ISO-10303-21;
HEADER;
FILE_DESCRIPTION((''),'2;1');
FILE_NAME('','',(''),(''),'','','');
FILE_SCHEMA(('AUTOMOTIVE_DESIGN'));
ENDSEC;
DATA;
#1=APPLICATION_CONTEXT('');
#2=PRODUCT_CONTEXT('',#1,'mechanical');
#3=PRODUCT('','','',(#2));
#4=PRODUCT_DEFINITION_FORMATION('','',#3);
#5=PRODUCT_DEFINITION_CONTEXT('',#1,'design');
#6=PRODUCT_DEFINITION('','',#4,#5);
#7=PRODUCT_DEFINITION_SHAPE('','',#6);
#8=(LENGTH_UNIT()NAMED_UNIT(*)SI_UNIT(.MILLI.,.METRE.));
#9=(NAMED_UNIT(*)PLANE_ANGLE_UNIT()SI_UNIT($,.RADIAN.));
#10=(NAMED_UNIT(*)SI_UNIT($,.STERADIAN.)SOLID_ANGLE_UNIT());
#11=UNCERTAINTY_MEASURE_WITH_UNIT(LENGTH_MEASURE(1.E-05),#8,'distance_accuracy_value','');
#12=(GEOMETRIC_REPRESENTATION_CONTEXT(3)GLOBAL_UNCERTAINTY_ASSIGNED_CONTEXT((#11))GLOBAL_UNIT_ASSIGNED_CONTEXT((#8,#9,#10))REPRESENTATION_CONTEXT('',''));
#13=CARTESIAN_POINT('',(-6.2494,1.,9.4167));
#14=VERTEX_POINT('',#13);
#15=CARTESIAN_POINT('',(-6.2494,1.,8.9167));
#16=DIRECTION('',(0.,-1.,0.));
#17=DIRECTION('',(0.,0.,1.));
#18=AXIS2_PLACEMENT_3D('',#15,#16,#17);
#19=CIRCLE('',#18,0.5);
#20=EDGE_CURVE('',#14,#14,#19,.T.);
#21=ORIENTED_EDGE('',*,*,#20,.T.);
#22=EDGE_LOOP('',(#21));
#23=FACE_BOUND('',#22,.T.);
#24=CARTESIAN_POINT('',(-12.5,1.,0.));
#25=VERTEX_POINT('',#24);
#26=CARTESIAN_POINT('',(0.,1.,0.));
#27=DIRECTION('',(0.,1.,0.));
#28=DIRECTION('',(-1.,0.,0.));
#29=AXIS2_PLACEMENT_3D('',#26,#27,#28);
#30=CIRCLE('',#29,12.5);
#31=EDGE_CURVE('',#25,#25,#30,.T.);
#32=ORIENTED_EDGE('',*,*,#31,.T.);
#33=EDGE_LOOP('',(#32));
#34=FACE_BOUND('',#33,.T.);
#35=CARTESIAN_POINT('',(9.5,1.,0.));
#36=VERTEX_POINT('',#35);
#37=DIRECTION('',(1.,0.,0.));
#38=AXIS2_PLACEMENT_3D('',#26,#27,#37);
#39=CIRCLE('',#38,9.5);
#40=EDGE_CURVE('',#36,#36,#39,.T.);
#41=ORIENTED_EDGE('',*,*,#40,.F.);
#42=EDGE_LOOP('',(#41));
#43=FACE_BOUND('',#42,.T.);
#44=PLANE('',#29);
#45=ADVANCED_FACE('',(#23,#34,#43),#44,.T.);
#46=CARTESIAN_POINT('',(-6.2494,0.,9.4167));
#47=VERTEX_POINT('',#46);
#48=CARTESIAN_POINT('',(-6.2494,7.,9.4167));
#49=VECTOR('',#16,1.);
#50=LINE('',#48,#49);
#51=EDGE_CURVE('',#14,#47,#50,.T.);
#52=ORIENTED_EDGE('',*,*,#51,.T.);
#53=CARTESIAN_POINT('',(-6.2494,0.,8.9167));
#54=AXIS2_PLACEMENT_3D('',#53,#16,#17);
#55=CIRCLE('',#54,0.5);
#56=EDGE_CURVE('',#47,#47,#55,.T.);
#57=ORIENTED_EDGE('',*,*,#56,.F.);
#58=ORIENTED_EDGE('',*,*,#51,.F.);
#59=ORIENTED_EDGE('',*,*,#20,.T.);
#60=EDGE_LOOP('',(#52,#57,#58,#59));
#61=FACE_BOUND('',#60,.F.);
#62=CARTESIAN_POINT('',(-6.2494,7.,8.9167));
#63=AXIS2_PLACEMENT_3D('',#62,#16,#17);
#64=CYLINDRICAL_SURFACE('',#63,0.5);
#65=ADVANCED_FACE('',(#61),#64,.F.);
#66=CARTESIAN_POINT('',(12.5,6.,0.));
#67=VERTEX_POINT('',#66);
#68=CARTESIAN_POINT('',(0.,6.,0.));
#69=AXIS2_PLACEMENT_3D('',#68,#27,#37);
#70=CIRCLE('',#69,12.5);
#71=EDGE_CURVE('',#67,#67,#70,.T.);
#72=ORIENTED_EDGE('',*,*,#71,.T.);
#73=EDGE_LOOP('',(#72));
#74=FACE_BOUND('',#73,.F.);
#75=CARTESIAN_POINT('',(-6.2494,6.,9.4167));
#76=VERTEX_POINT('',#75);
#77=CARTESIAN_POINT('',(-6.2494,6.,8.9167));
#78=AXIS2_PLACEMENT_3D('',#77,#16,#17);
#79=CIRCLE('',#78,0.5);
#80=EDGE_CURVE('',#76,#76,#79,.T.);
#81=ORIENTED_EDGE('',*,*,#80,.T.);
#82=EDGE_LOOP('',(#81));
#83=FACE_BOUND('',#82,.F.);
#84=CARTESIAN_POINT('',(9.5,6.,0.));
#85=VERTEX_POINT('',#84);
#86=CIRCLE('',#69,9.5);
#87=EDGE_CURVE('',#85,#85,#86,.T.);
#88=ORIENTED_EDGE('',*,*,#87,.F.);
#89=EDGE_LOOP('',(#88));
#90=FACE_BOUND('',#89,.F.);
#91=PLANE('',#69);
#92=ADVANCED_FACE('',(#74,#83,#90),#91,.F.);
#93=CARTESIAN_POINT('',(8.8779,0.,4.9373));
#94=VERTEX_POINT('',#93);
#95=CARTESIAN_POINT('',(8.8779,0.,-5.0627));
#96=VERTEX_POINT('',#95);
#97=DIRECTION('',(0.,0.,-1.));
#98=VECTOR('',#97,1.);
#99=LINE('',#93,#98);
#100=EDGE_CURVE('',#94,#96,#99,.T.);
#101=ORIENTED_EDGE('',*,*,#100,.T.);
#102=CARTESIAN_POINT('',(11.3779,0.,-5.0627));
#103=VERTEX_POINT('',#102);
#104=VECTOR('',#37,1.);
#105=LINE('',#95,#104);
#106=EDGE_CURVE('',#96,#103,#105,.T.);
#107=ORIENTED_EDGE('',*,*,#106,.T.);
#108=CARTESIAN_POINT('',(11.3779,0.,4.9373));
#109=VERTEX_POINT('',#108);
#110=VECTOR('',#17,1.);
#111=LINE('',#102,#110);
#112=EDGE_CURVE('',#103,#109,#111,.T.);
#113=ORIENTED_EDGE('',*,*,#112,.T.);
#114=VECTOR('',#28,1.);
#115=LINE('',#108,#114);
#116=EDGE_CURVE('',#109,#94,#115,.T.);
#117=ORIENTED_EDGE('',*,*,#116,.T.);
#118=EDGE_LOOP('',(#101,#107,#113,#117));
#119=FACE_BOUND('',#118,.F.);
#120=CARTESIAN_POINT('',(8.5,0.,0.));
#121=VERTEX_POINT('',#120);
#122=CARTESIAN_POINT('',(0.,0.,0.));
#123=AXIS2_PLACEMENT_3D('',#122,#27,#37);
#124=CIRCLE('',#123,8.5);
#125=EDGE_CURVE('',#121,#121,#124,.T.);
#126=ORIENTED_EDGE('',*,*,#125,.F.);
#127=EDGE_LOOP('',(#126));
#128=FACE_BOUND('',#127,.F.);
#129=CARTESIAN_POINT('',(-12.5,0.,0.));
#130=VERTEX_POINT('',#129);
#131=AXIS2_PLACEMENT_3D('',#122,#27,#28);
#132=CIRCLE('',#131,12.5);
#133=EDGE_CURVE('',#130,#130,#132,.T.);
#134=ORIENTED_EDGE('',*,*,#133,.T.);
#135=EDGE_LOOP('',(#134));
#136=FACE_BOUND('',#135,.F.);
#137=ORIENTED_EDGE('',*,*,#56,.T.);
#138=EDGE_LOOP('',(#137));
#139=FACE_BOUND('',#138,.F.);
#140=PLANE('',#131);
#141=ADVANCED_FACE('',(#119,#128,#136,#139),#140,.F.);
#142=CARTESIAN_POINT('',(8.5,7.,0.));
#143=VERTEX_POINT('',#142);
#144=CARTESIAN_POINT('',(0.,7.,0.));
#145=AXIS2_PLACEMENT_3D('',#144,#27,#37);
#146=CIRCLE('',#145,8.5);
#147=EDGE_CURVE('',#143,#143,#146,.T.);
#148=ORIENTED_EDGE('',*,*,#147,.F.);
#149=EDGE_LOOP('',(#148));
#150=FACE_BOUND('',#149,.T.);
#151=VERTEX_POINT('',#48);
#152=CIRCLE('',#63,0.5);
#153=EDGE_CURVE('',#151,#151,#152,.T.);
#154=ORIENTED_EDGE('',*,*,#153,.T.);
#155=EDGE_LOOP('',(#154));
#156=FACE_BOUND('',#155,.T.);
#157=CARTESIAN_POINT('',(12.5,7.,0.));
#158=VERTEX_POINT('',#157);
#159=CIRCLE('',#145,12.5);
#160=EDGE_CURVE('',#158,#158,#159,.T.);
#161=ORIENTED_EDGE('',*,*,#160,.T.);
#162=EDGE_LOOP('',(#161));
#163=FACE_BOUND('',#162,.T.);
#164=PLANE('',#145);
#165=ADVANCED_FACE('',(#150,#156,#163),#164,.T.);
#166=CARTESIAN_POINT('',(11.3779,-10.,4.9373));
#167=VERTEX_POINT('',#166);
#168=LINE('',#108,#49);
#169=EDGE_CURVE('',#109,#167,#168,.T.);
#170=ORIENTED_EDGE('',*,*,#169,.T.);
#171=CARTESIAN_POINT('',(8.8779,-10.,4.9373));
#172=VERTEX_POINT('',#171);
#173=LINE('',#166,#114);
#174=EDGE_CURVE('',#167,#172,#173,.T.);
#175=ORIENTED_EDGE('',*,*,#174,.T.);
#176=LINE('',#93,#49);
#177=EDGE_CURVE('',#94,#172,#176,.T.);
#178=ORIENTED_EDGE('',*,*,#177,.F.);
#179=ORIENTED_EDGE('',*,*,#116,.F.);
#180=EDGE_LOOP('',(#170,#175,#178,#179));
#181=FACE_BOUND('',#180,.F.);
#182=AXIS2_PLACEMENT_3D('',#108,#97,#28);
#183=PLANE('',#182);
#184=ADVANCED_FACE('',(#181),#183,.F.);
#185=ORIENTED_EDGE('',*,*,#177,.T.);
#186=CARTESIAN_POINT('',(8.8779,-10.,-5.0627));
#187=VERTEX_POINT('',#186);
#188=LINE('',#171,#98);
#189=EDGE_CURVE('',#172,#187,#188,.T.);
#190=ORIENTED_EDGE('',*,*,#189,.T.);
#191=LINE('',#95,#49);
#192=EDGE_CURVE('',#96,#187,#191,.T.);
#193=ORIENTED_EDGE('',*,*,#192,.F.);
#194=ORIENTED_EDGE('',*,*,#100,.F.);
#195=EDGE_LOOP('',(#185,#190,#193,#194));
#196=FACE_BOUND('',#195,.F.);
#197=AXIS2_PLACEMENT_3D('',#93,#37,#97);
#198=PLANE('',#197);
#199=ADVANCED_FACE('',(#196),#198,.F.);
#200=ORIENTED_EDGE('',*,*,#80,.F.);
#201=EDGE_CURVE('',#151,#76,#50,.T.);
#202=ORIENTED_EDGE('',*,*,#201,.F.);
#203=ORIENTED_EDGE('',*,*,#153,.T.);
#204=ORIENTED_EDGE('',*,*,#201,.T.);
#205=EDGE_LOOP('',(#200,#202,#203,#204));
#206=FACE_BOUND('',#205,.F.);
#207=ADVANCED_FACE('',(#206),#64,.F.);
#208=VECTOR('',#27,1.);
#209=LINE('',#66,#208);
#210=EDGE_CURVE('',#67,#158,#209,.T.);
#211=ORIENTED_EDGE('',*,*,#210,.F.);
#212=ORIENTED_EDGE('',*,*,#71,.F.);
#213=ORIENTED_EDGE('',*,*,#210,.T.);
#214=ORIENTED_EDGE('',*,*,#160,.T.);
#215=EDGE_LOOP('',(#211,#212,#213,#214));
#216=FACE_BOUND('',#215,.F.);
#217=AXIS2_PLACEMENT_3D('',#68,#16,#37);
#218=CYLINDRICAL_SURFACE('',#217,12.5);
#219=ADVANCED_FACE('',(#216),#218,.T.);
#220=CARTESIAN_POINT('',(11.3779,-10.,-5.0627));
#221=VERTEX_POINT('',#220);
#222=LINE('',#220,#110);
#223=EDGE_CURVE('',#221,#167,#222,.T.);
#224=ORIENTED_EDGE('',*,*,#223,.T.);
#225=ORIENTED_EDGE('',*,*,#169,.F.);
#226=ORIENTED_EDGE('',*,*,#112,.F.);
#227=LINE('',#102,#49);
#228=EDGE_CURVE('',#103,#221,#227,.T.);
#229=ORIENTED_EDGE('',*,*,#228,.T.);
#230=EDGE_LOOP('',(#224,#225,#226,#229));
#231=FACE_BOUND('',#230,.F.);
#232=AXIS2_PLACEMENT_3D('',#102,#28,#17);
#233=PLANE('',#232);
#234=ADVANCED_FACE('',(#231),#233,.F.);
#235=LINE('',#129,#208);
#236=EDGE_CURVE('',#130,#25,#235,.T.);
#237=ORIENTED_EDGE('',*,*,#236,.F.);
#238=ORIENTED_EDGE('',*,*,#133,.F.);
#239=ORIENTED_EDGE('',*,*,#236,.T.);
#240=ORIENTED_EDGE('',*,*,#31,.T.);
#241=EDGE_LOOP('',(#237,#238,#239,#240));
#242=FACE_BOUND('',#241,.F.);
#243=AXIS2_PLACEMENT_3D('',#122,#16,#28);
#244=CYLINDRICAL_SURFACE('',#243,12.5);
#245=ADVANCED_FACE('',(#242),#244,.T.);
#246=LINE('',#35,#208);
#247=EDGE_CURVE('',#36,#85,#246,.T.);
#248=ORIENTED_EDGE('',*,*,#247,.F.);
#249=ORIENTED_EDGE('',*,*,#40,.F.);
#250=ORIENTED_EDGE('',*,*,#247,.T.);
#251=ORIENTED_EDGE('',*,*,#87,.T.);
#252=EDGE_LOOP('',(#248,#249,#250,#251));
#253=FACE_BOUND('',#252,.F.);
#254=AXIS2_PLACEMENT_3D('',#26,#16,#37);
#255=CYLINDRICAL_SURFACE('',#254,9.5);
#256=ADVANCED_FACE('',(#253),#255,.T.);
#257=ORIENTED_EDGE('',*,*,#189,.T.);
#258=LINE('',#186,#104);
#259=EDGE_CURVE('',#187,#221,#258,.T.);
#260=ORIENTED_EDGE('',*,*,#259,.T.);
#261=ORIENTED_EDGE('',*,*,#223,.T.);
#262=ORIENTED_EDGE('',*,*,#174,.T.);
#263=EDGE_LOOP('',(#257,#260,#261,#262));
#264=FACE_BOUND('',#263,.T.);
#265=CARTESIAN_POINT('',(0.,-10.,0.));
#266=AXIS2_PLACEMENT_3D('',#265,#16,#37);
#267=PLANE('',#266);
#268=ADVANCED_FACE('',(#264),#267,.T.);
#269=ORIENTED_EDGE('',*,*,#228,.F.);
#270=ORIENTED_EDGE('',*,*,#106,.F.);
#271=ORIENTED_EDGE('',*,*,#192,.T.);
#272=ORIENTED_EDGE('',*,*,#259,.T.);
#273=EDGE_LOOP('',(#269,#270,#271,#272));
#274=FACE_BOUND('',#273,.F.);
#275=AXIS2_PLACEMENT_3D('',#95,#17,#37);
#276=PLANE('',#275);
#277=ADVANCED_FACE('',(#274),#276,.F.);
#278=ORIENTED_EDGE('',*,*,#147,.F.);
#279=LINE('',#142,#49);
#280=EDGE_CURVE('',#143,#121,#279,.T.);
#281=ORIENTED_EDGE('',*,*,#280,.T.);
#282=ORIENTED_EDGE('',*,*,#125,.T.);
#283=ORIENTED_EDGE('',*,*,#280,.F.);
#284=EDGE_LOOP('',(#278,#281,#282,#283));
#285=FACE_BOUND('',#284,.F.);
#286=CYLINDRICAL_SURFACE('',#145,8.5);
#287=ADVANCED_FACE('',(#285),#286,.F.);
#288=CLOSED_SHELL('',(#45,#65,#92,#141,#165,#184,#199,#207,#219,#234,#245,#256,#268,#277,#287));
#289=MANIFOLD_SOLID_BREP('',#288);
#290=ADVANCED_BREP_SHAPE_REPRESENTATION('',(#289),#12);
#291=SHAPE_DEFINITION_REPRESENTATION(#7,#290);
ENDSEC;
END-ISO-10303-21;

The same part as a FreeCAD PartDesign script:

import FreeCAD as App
import Part
import Sketcher
from FreeCAD import Vector
Q = App.Units.Quantity

doc = App.newDocument("Part")
body = doc.addObject("PartDesign::Body", "Body")

sketch1 = body.newObject("Sketcher::SketchObject", "Sketch")
sketch1.AttachmentSupport = (doc.getObject("XZ_Plane"), [""])
sketch1.MapMode = "FlatFace"
sketch1.addGeometry(Part.Circle(Vector(0, 0, 0), Vector(0, 0, 1), 12), False)
sketch1.addConstraint([
    Sketcher.Constraint("Coincident", 0, 3, -1, 1),
    Sketcher.Constraint("Diameter", 0, Q("25 mm")),
])
pad1 = body.newObject("PartDesign::Pad", "Pad")
pad1.Profile = sketch1
pad1.Length = 1
pad1.Reversed = True

sketch2 = body.newObject("Sketcher::SketchObject", "Sketch001")
sketch2.AttachmentSupport = (doc.getObject("XZ_Plane"), [""])
sketch2.MapMode = "FlatFace"
sketch2.AttachmentOffset = App.Placement(Vector(0, 0, -1), App.Rotation())
sketch2.addGeometry(Part.Circle(Vector(0, 0, 0), Vector(0, 0, 1), 10), False)
sketch2.addConstraint([
    Sketcher.Constraint("Coincident", 0, 3, -1, 1),
    Sketcher.Constraint("Diameter", 0, Q("19 mm")),
])
pad2 = body.newObject("PartDesign::Pad", "Pad001")
pad2.Profile = sketch2
pad2.Length = 5
pad2.Reversed = True

sketch3 = body.newObject("Sketcher::SketchObject", "Sketch002")
sketch3.AttachmentSupport = (doc.getObject("XZ_Plane"), [""])
sketch3.MapMode = "FlatFace"
sketch3.AttachmentOffset = App.Placement(Vector(0, 0, -6), App.Rotation())
sketch3.addGeometry(Part.Circle(Vector(0, 0, 0), Vector(0, 0, 1), 12), False)
sketch3.addConstraint([
    Sketcher.Constraint("Coincident", 0, 3, -1, 1),
    Sketcher.Constraint("Diameter", 0, Q("25 mm")),
])
pad3 = body.newObject("PartDesign::Pad", "Pad002")
pad3.Profile = sketch3
pad3.Length = 1
pad3.Reversed = True

sketch4 = body.newObject("Sketcher::SketchObject", "Sketch003")
sketch4.AttachmentSupport = (doc.getObject("XZ_Plane"), [""])
sketch4.MapMode = "FlatFace"
sketch4.AttachmentOffset = App.Placement(Vector(0, 0, -7), App.Rotation())
sketch4.addGeometry(Part.Circle(Vector(-6.2, 8.9, 0), Vector(0, 0, 1), 0.5), False)
sketch4.addConstraint([
    Sketcher.Constraint("Diameter", 0, Q("1 mm")),
    Sketcher.Constraint("DistanceX", 0, 3, -1, 1, Q("6.2494 mm")),
    Sketcher.Constraint("DistanceY", -1, 1, 0, 3, Q("8.9167 mm")),
])
doc.recompute()
hole = body.newObject("PartDesign::Hole", "Hole")
hole.Profile = sketch4
hole.ThreadType = "None"
hole.Diameter = 1
hole.DepthType = "Dimension"
hole.Depth = 7
hole.DrillPoint = "Flat"
hole.Reversed = True

sketch5 = body.newObject("Sketcher::SketchObject", "Sketch004")
sketch5.AttachmentSupport = (doc.getObject("XZ_Plane"), [""])
sketch5.MapMode = "FlatFace"
sketch5.AttachmentOffset = App.Placement(Vector(0, 0, -7), App.Rotation())
sketch5.addGeometry(Part.Circle(Vector(0, 0, 0), Vector(0, 0, 1), 8), False)
sketch5.addConstraint([
    Sketcher.Constraint("Coincident", 0, 3, -1, 1),
    Sketcher.Constraint("Diameter", 0, Q("17 mm")),
])
pocket1 = body.newObject("PartDesign::Pocket", "Pocket")
pocket1.Profile = sketch5
pocket1.Length = 7
pocket1.Reversed = True

sketch6 = body.newObject("Sketcher::SketchObject", "Sketch005")
sketch6.AttachmentSupport = (doc.getObject("XZ_Plane"), [""])
sketch6.MapMode = "FlatFace"
sketch6.addGeometry([
    Part.LineSegment(Vector(11.4, -5.1, 0), Vector(11.4, 4.9, 0)),
    Part.LineSegment(Vector(11.4, 4.9, 0), Vector(8.9, 4.9, 0)),
    Part.LineSegment(Vector(8.9, 4.9, 0), Vector(8.9, -5.1, 0)),
    Part.LineSegment(Vector(8.9, -5.1, 0), Vector(11.4, -5.1, 0)),
], False)
sketch6.addConstraint([
    Sketcher.Constraint("Coincident", 0, 2, 1, 1),
    Sketcher.Constraint("Coincident", 1, 2, 2, 1),
    Sketcher.Constraint("Coincident", 2, 2, 3, 1),
    Sketcher.Constraint("Coincident", 3, 2, 0, 1),
    Sketcher.Constraint("Vertical", 0),
    Sketcher.Constraint("Horizontal", 1),
    Sketcher.Constraint("Vertical", 2),
    Sketcher.Constraint("Horizontal", 3),
    Sketcher.Constraint("DistanceY", 0, 1, 0, 2, Q("10 mm")),
    Sketcher.Constraint("DistanceX", 1, 2, 1, 1, Q("2.5 mm")),
    Sketcher.Constraint("DistanceX", -1, 1, 0, 2, Q("11.378 mm")),
    Sketcher.Constraint("DistanceY", -1, 1, 0, 2, Q("4.9373 mm")),
])
pad4 = body.newObject("PartDesign::Pad", "Pad003")
pad4.Profile = sketch6
pad4.Length = 10

doc.recompute()
